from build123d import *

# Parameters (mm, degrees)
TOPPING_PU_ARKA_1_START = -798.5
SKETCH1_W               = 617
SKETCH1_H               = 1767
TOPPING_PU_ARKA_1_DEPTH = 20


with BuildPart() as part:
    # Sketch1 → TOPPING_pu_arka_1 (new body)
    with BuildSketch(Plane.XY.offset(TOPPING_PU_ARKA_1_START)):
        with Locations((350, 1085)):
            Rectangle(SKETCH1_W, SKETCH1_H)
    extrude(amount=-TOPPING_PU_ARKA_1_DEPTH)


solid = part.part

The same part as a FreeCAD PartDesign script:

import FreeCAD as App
import Part
import Sketcher

V = App.Vector

doc = App.newDocument("Part")
body = doc.addObject("PartDesign::Body", "Body")

# Sketch on XY plane
sketch1 = body.newObject("Sketcher::SketchObject", "Sketch")
sketch1.AttachmentSupport = (doc.getObject("XY_Plane"), [""])
sketch1.MapMode = "FlatFace"
sketch1.AttachmentOffset = App.Placement(V(0, 0, -798.5), App.Rotation())
sketch1.addGeometry([
    Part.LineSegment(V(42, 1968, 0), V(42, 202, 0)),
    Part.LineSegment(V(42, 202, 0), V(658, 202, 0)),
    Part.LineSegment(V(658, 202, 0), V(658, 1968, 0)),
    Part.LineSegment(V(658, 1968, 0), V(42, 1968, 0)),
], False)
sketch1.addConstraint([
    Sketcher.Constraint("Coincident", 0, 2, 1, 1),
    Sketcher.Constraint("Coincident", 1, 2, 2, 1),
    Sketcher.Constraint("Coincident", 2, 2, 3, 1),
    Sketcher.Constraint("Coincident", 3, 2, 0, 1),
    Sketcher.Constraint("Vertical", 0),
    Sketcher.Constraint("Horizontal", 1),
    Sketcher.Constraint("Vertical", 2),
    Sketcher.Constraint("Horizontal", 3),
    Sketcher.Constraint("DistanceX", 1, 1, 1, 2, 617.0),
    Sketcher.Constraint("DistanceY", 0, 2, 0, 1, 1767.0),
    Sketcher.Constraint("DistanceX", -1, 1, 0, 2, 41.5),
    Sketcher.Constraint("DistanceY", -1, 1, 0, 2, 201.5),
])
pad1 = body.newObject("PartDesign::Pad", "Pad")
pad1.Profile = sketch1
pad1.Length = 20
pad1.Reversed = True

doc.recompute()
